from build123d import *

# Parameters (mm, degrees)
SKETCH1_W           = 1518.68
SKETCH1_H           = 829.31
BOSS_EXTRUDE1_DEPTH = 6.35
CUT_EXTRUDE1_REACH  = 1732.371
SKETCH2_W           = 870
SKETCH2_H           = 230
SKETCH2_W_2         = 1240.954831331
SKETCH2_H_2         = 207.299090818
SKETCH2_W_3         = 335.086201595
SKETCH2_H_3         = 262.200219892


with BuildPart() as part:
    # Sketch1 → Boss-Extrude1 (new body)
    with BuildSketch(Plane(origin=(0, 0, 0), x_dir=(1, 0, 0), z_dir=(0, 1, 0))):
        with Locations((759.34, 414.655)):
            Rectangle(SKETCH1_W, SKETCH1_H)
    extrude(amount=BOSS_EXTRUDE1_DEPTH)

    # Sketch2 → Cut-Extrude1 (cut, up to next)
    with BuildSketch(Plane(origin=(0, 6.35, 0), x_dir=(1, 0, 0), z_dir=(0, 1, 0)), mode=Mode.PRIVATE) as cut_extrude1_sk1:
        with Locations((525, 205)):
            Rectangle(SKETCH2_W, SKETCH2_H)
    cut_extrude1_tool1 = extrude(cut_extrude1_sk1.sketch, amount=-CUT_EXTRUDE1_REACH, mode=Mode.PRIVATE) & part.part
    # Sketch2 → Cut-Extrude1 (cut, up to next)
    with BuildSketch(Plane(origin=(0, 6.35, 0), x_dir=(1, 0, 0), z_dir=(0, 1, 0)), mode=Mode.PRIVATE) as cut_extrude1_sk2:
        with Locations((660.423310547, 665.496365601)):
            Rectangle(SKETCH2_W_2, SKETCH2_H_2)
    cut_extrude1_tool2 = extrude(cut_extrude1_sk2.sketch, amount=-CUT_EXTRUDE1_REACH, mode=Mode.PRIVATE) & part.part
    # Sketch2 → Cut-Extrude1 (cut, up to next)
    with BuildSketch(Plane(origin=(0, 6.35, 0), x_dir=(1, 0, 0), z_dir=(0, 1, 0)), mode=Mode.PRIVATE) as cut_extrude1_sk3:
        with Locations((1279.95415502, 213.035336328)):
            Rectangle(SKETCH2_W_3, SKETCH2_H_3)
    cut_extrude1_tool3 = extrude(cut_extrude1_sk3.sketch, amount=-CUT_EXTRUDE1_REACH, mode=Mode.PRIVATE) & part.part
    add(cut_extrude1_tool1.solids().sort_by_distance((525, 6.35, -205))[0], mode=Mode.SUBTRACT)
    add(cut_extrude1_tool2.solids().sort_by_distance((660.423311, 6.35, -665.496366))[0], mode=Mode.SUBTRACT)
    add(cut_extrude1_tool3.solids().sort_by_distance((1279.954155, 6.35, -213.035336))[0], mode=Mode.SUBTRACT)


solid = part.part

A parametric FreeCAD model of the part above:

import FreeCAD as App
import Part
import Sketcher
from FreeCAD import Vector


def add_polygon(sketch, points):
    """Adds a closed chain of lines whose ends are joined by coincident constraints."""
    first, n = sketch.GeometryCount, len(points)
    for a, b in zip(points, points[1:] + points[:1]):
        sketch.addGeometry(Part.LineSegment(App.Vector(*a, 0), App.Vector(*b, 0)), False)
    for i in range(n):
        sketch.addConstraint(Sketcher.Constraint("Coincident", first + i, 2, first + (i + 1) % n, 1))

doc = App.newDocument("Part")
body = doc.addObject("PartDesign::Body", "Body")

sketch1 = doc.addObject("Sketcher::SketchObject", "Sketch")
body.addObject(sketch1)
sketch1.AttachmentSupport = (doc.XZ_Plane, [""])
sketch1.MapMode = "FlatFace"
add_polygon(sketch1, [(0, -829), (0, 0), (1519, 0), (1519, -829)])
sketch1.addConstraint(Sketcher.Constraint("Vertical", 0))
sketch1.addConstraint(Sketcher.Constraint("Horizontal", 1))
sketch1.addConstraint(Sketcher.Constraint("Vertical", 2))
sketch1.addConstraint(Sketcher.Constraint("Horizontal", 3))
sketch1.addConstraint(Sketcher.Constraint("Coincident", 0, 2, -1, 1))
sketch1.addConstraint(Sketcher.Constraint("DistanceX", 1, 1, 1, 2, 1518.68))
sketch1.addConstraint(Sketcher.Constraint("DistanceY", 0, 1, 0, 2, 829.31))
pad1 = doc.addObject("PartDesign::Pad", "Pad")
body.addObject(pad1)
pad1.Profile = sketch1
pad1.Length = 6.35
pad1.Reversed = True

sketch2 = doc.addObject("Sketcher::SketchObject", "Sketch001")
body.addObject(sketch2)
sketch2.AttachmentSupport = (doc.XZ_Plane, [""])
sketch2.MapMode = "FlatFace"
sketch2.AttachmentOffset = App.Placement(Vector(0, 0, -6.35), App.Rotation())
add_polygon(sketch2, [(90, -320), (90, -90), (960, -90), (960, -320)])
sketch2.addConstraint(Sketcher.Constraint("Vertical", 0))
sketch2.addConstraint(Sketcher.Constraint("Horizontal", 1))
sketch2.addConstraint(Sketcher.Constraint("Vertical", 2))
sketch2.addConstraint(Sketcher.Constraint("Horizontal", 3))
sketch2.addConstraint(Sketcher.Constraint("DistanceX", 1, 1, 1, 2, 870.0))
sketch2.addConstraint(Sketcher.Constraint("DistanceY", 0, 1, 0, 2, 230.0))
sketch2.addConstraint(Sketcher.Constraint("DistanceX", -1, 1, 0, 2, 90.0))
sketch2.addConstraint(Sketcher.Constraint("DistanceY", 0, 2, -1, 1, 90.0))
pocket1 = doc.addObject("PartDesign::Pocket", "Pocket")
body.addObject(pocket1)
pocket1.Profile = sketch2
pocket1.Type = "UpToFirst"
pocket1.Reversed = True

sketch3 = doc.addObject("Sketcher::SketchObject", "Sketch002")
body.addObject(sketch3)
sketch3.AttachmentSupport = (doc.XZ_Plane, [""])
sketch3.MapMode = "FlatFace"
sketch3.AttachmentOffset = App.Placement(Vector(0, 0, -6.35), App.Rotation())
add_polygon(sketch3, [(40, -769), (40, -562), (1281, -562), (1281, -769)])
sketch3.addConstraint(Sketcher.Constraint("Vertical", 0))
sketch3.addConstraint(Sketcher.Constraint("Horizontal", 1))
sketch3.addConstraint(Sketcher.Constraint("Vertical", 2))
sketch3.addConstraint(Sketcher.Constraint("Horizontal", 3))
sketch3.addConstraint(Sketcher.Constraint("DistanceX", 1, 1, 1, 2, 1240.954831))
sketch3.addConstraint(Sketcher.Constraint("DistanceY", 0, 1, 0, 2, 207.299091))
sketch3.addConstraint(Sketcher.Constraint("DistanceY", 0, 2, -1, 1, 561.84682))
sketch3.addConstraint(Sketcher.Constraint("DistanceX", -1, 1, 0, 2, 39.945895))
pocket2 = doc.addObject("PartDesign::Pocket", "Pocket001")
body.addObject(pocket2)
pocket2.Profile = sketch3
pocket2.Type = "UpToFirst"
pocket2.Reversed = True

sketch4 = doc.addObject("Sketcher::SketchObject", "Sketch003")
body.addObject(sketch4)
sketch4.AttachmentSupport = (doc.XZ_Plane, [""])
sketch4.MapMode = "FlatFace"
sketch4.AttachmentOffset = App.Placement(Vector(0, 0, -6.35), App.Rotation())
add_polygon(sketch4, [(1112, -344), (1112, -82), (1447, -82), (1447, -344)])
sketch4.addConstraint(Sketcher.Constraint("Vertical", 0))
sketch4.addConstraint(Sketcher.Constraint("Horizontal", 1))
sketch4.addConstraint(Sketcher.Constraint("Vertical", 2))
sketch4.addConstraint(Sketcher.Constraint("Horizontal", 3))
sketch4.addConstraint(Sketcher.Constraint("DistanceX", 1, 1, 1, 2, 335.086202))
sketch4.addConstraint(Sketcher.Constraint("DistanceY", 0, 1, 0, 2, 262.20022))
sketch4.addConstraint(Sketcher.Constraint("DistanceX", -1, 1, 0, 2, 1112.411054))
sketch4.addConstraint(Sketcher.Constraint("DistanceY", 0, 2, -1, 1, 81.935226))
pocket3 = doc.addObject("PartDesign::Pocket", "Pocket002")
body.addObject(pocket3)
pocket3.Profile = sketch4
pocket3.Type = "UpToFirst"
pocket3.Reversed = True

doc.recompute()
